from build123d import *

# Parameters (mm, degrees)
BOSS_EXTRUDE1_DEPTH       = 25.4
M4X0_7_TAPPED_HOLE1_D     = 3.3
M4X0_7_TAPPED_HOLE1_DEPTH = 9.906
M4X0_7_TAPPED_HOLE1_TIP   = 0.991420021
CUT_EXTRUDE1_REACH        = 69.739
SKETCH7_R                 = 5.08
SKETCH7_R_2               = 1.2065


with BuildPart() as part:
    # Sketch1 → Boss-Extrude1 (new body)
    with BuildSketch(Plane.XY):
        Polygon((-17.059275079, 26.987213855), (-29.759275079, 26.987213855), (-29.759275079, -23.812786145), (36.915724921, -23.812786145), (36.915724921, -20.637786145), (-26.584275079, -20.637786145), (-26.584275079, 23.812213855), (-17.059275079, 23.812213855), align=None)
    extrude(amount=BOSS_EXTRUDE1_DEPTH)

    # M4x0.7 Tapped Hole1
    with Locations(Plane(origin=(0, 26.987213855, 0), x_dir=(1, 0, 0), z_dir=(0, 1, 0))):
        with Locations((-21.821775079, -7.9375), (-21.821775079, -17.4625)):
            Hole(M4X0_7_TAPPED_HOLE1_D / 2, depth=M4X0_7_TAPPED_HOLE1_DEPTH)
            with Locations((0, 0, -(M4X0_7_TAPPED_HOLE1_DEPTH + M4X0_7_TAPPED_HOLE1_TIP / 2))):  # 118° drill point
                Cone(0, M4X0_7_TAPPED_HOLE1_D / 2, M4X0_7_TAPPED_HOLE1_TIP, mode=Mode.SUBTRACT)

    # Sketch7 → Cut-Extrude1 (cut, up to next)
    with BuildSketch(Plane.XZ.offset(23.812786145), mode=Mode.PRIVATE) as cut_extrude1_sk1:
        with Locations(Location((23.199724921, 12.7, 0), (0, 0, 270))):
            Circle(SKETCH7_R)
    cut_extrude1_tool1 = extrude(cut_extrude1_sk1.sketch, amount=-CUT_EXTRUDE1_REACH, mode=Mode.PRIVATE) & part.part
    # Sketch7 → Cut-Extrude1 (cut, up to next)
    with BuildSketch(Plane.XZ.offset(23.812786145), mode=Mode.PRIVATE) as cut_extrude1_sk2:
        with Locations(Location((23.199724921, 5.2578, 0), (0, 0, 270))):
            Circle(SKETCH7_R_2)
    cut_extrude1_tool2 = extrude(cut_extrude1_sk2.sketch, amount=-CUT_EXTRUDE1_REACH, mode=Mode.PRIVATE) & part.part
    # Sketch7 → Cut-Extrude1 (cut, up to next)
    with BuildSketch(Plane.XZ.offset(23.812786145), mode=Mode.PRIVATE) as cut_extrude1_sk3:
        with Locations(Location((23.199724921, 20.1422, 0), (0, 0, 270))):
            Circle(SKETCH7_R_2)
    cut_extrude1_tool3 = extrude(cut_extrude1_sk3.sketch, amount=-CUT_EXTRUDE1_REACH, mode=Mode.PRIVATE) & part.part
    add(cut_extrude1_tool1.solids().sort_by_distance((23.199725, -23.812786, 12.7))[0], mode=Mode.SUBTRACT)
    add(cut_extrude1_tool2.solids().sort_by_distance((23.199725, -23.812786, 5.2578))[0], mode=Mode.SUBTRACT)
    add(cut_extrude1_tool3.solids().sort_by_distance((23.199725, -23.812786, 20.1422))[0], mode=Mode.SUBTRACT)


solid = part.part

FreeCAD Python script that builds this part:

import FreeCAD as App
import Part
import Sketcher

V = App.Vector
Q = App.Units.Quantity

doc = App.newDocument("Part")
body = doc.addObject("PartDesign::Body", "Body")

# Sketch on XY plane
sketch1 = body.newObject("Sketcher::SketchObject", "Sketch")
sketch1.AttachmentSupport = (doc.getObject("XY_Plane"), [""])
sketch1.MapMode = "FlatFace"
sketch1.addGeometry(Part.LineSegment(V(-17.1, 27, 0), V(-29.8, 27, 0)), False)
sketch1.addGeometry(Part.LineSegment(V(-29.8, 27, 0), V(-29.8, -23.8, 0)), False)
sketch1.addGeometry(Part.LineSegment(V(-29.8, -23.8, 0), V(36.9, -23.8, 0)), False)
sketch1.addGeometry(Part.LineSegment(V(36.9, -23.8, 0), V(36.9, -20.6, 0)), False)
sketch1.addGeometry(Part.LineSegment(V(36.9, -20.6, 0), V(-26.6, -20.6, 0)), False)
sketch1.addGeometry(Part.LineSegment(V(-26.6, -20.6, 0), V(-26.6, 23.8, 0)), False)
sketch1.addGeometry(Part.LineSegment(V(-26.6, 23.8, 0), V(-17.1, 23.8, 0)), False)
sketch1.addGeometry(Part.LineSegment(V(-17.1, 23.8, 0), V(-17.1, 27, 0)), False)
sketch1.addConstraint(Sketcher.Constraint("Coincident", 0, 2, 1, 1))
sketch1.addConstraint(Sketcher.Constraint("Coincident", 1, 2, 2, 1))
sketch1.addConstraint(Sketcher.Constraint("Coincident", 2, 2, 3, 1))
sketch1.addConstraint(Sketcher.Constraint("Coincident", 3, 2, 4, 1))
sketch1.addConstraint(Sketcher.Constraint("Coincident", 4, 2, 5, 1))
sketch1.addConstraint(Sketcher.Constraint("Coincident", 5, 2, 6, 1))
sketch1.addConstraint(Sketcher.Constraint("Coincident", 6, 2, 7, 1))
sketch1.addConstraint(Sketcher.Constraint("Coincident", 7, 2, 0, 1))
sketch1.addConstraint(Sketcher.Constraint("Horizontal", 0))
sketch1.addConstraint(Sketcher.Constraint("Vertical", 1))
sketch1.addConstraint(Sketcher.Constraint("Horizontal", 2))
sketch1.addConstraint(Sketcher.Constraint("Vertical", 3))
sketch1.addConstraint(Sketcher.Constraint("Horizontal", 4))
sketch1.addConstraint(Sketcher.Constraint("Vertical", 5))
sketch1.addConstraint(Sketcher.Constraint("Horizontal", 6))
sketch1.addConstraint(Sketcher.Constraint("Vertical", 7))
sketch1.addConstraint(Sketcher.Constraint("Equal", 3, 7))
sketch1.addConstraint(Sketcher.Constraint("DistanceY", 1, 2, 1, 1, Q("2 in")))
sketch1.addConstraint(Sketcher.Constraint("DistanceX", 0, 2, 0, 1, Q("0.5 in")))
sketch1.addConstraint(Sketcher.Constraint("DistanceX", 4, 2, 4, 1, Q("2.5 in")))
sketch1.addConstraint(Sketcher.Constraint("DistanceY", 5, 1, 5, 2, Q("1.75 in")))
sketch1.addConstraint(Sketcher.Constraint("DistanceX", 2, 1, 2, 2, Q("2.625 in")))
sketch1.addConstraint(Sketcher.Constraint("DistanceX", 0, 2, -1, 1, Q("29.759275 mm")))
sketch1.addConstraint(Sketcher.Constraint("DistanceY", -1, 1, 0, 2, Q("26.987214 mm")))
pad1 = body.newObject("PartDesign::Pad", "Pad")
pad1.Profile = sketch1
pad1.Length = Q("1 in")

# Sketch on XZ plane
sketch2 = body.newObject("Sketcher::SketchObject", "Sketch001")
sketch2.AttachmentSupport = (doc.getObject("XZ_Plane"), [""])
sketch2.MapMode = "FlatFace"
sketch2.AttachmentOffset = App.Placement(V(0, 0, -26.987214), App.Rotation())
sketch2.addGeometry(Part.Circle(V(-21.8, 7.9, 0), V(0, 0, 1), 1.6), False)
sketch2.addGeometry(Part.Circle(V(-21.8, 17.5, 0), V(0, 0, 1), 1.6), False)
sketch2.addConstraint(Sketcher.Constraint("Equal", 0, 1))
sketch2.addConstraint(Sketcher.Constraint("Vertical", 0, 3, 1, 3))
sketch2.addConstraint(Sketcher.Constraint("Diameter", 0, Q("3.3 mm")))
sketch2.addConstraint(Sketcher.Constraint("DistanceY", -1, 1, 0, 3, Q("0.3125 in")))
sketch2.addConstraint(Sketcher.Constraint("DistanceY", -1, 1, 1, 3, Q("0.6875 in")))
sketch2.addConstraint(Sketcher.Constraint("DistanceX", 0, 3, -1, 1, Q("21.821775 mm")))
doc.recompute()
hole = body.newObject("PartDesign::Hole", "Hole")
hole.Profile = sketch2
hole.ThreadType = "None"
hole.Diameter = 3.3
hole.DepthType = "Dimension"
hole.Depth = Q("0.39 in")
hole.DrillPoint = "Angled"
hole.DrillPointAngle = 118
hole.Reversed = True

# Sketch on XZ plane
sketch3 = body.newObject("Sketcher::SketchObject", "Sketch002")
sketch3.AttachmentSupport = (doc.getObject("XZ_Plane"), [""])
sketch3.MapMode = "FlatFace"
sketch3.AttachmentOffset = App.Placement(V(0, 0, 23.812786), App.Rotation())
sketch3.addGeometry(Part.Circle(V(23, 13, 0), V(0, 0, 1), 5), False)
sketch3.addConstraint(Sketcher.Constraint("Diameter", 0, Q("0.4 in")))
sketch3.addConstraint(Sketcher.Constraint("DistanceY", -1, 1, 0, 3, Q("0.5 in")))
sketch3.addConstraint(Sketcher.Constraint("DistanceX", -1, 1, 0, 3, Q("23.199725 mm")))
pocket1 = body.newObject("PartDesign::Pocket", "Pocket")
pocket1.Profile = sketch3
pocket1.Type = "UpToFirst"

# Sketch on XZ plane
sketch4 = body.newObject("Sketcher::SketchObject", "Sketch003")
sketch4.AttachmentSupport = (doc.getObject("XZ_Plane"), [""])
sketch4.MapMode = "FlatFace"
sketch4.AttachmentOffset = App.Placement(V(0, 0, 23.812786), App.Rotation())
sketch4.addGeometry(Part.Circle(V(23.2, 5.3, 0), V(0, 0, 1), 1.2), False)
sketch4.addConstraint(Sketcher.Constraint("Diameter", 0, Q("0.095 in")))
sketch4.addConstraint(Sketcher.Constraint("DistanceY", -1, 1, 0, 3, Q("0.207 in")))
sketch4.addConstraint(Sketcher.Constraint("DistanceX", -1, 1, 0, 3, Q("23.199725 mm")))
pocket2 = body.newObject("PartDesign::Pocket", "Pocket001")
pocket2.Profile = sketch4
pocket2.Type = "UpToFirst"

# Sketch on XZ plane
sketch5 = body.newObject("Sketcher::SketchObject", "Sketch004")
sketch5.AttachmentSupport = (doc.getObject("XZ_Plane"), [""])
sketch5.MapMode = "FlatFace"
sketch5.AttachmentOffset = App.Placement(V(0, 0, 23.812786), App.Rotation())
sketch5.addGeometry(Part.Circle(V(23.2, 20.1, 0), V(0, 0, 1), 1.2), False)
sketch5.addConstraint(Sketcher.Constraint("Diameter", 0, Q("0.095 in")))
sketch5.addConstraint(Sketcher.Constraint("DistanceY", -1, 1, 0, 3, Q("0.793 in")))
sketch5.addConstraint(Sketcher.Constraint("DistanceX", -1, 1, 0, 3, Q("23.199725 mm")))
pocket3 = body.newObject("PartDesign::Pocket", "Pocket002")
pocket3.Profile = sketch5
pocket3.Type = "UpToFirst"

doc.recompute()
